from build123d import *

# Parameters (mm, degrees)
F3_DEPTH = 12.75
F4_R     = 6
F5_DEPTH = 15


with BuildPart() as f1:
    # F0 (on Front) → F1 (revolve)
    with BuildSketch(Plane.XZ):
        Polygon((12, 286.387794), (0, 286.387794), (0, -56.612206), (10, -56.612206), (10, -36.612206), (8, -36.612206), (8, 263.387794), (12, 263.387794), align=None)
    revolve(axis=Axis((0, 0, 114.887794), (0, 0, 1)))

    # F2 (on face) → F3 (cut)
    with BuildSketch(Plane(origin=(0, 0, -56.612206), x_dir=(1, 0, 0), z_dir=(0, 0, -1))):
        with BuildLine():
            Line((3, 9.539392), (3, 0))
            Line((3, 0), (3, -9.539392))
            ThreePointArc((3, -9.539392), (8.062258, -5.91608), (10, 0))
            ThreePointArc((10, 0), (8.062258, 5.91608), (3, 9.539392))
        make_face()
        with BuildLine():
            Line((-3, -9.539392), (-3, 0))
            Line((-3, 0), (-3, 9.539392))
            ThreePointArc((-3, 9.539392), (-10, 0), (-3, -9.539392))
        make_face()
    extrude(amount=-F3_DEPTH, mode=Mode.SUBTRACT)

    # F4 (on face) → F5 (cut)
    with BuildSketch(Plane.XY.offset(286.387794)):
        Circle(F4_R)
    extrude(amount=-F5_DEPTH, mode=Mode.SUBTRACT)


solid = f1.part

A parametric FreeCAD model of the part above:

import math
import FreeCAD as App
import Part
import Sketcher

V = App.Vector

doc = App.newDocument("Part")
body = doc.addObject("PartDesign::Body", "Body")

# Sketch on XZ plane
sketch1 = body.newObject("Sketcher::SketchObject", "Sketch")
sketch1.AttachmentSupport = (doc.getObject("XZ_Plane"), [""])
sketch1.MapMode = "FlatFace"
sketch1.addGeometry(Part.LineSegment(V(12, 286.4, 0), V(0, 286.4, 0)), False)
sketch1.addGeometry(Part.LineSegment(V(0, 286.4, 0), V(0, -56.6, 0)), False)
sketch1.addGeometry(Part.LineSegment(V(0, -56.6, 0), V(10, -56.6, 0)), False)
sketch1.addGeometry(Part.LineSegment(V(10, -56.6, 0), V(10, -36.6, 0)), False)
sketch1.addGeometry(Part.LineSegment(V(10, -36.6, 0), V(8, -36.6, 0)), False)
sketch1.addGeometry(Part.LineSegment(V(8, -36.6, 0), V(8, 263.4, 0)), False)
sketch1.addGeometry(Part.LineSegment(V(8, 263.4, 0), V(12, 263.4, 0)), False)
sketch1.addGeometry(Part.LineSegment(V(12, 263.4, 0), V(12, 286.4, 0)), False)
sketch1.addConstraint(Sketcher.Constraint("Coincident", 0, 2, 1, 1))
sketch1.addConstraint(Sketcher.Constraint("Coincident", 1, 2, 2, 1))
sketch1.addConstraint(Sketcher.Constraint("Coincident", 2, 2, 3, 1))
sketch1.addConstraint(Sketcher.Constraint("Coincident", 3, 2, 4, 1))
sketch1.addConstraint(Sketcher.Constraint("Coincident", 4, 2, 5, 1))
sketch1.addConstraint(Sketcher.Constraint("Coincident", 5, 2, 6, 1))
sketch1.addConstraint(Sketcher.Constraint("Coincident", 6, 2, 7, 1))
sketch1.addConstraint(Sketcher.Constraint("Coincident", 7, 2, 0, 1))
sketch1.addConstraint(Sketcher.Constraint("Horizontal", 0))
sketch1.addConstraint(Sketcher.Constraint("Vertical", 1))
sketch1.addConstraint(Sketcher.Constraint("Horizontal", 2))
sketch1.addConstraint(Sketcher.Constraint("Vertical", 3))
sketch1.addConstraint(Sketcher.Constraint("Horizontal", 4))
sketch1.addConstraint(Sketcher.Constraint("Vertical", 5))
sketch1.addConstraint(Sketcher.Constraint("Horizontal", 6))
sketch1.addConstraint(Sketcher.Constraint("Vertical", 7))
sketch1.addConstraint(Sketcher.Constraint("PointOnObject", 0, 2, -2))
sketch1.addConstraint(Sketcher.Constraint("DistanceX", 0, 2, 0, 1, 12.0))
sketch1.addConstraint(Sketcher.Constraint("DistanceX", 2, 1, 2, 2, 10.0))
sketch1.addConstraint(Sketcher.Constraint("DistanceX", 4, 2, 4, 1, 2.0))
sketch1.addConstraint(Sketcher.Constraint("DistanceY", 1, 2, 1, 1, 343.0))
sketch1.addConstraint(Sketcher.Constraint("DistanceY", 3, 1, 3, 2, 20.0))
sketch1.addConstraint(Sketcher.Constraint("DistanceY", 5, 1, 5, 2, 300.0))
sketch1.addConstraint(Sketcher.Constraint("DistanceY", -1, 1, 0, 2, 286.387794))
revolution = body.newObject("PartDesign::Revolution", "Revolution")
revolution.Profile = sketch1
revolution.ReferenceAxis = (sketch1, ["V_Axis"])
revolution.Angle = 360

# Sketch on XY plane
sketch2 = body.newObject("Sketcher::SketchObject", "Sketch001")
sketch2.AttachmentSupport = (doc.getObject("XY_Plane"), [""])
sketch2.MapMode = "FlatFace"
sketch2.AttachmentOffset = App.Placement(V(0, 0, -56.612206), App.Rotation())
sketch2.addGeometry(Part.LineSegment(V(3, -10, 0), V(3, 10, 0)), False)
sketch2.addGeometry(Part.ArcOfCircle(Part.Circle(V(0, 0, 0), V(0, 0, 1), 10), math.radians(0), math.radians(73)), False)
sketch2.addGeometry(Part.ArcOfCircle(Part.Circle(V(0, 0, 0), V(0, 0, 1), 10), math.radians(-73), math.radians(0)), False)
sketch2.addGeometry(Part.LineSegment(V(-3, 10, 0), V(-3, -10, 0)), False)
sketch2.addGeometry(Part.ArcOfCircle(Part.Circle(V(0, 0, 0), V(0, 0, 1), 10), math.radians(107), math.radians(253)), False)
sketch2.addConstraint(Sketcher.Constraint("Coincident", 0, 2, 1, 2))
sketch2.addConstraint(Sketcher.Constraint("Tangent", 1, 1, 2, 2))
sketch2.addConstraint(Sketcher.Constraint("Coincident", 2, 1, 0, 1))
sketch2.addConstraint(Sketcher.Constraint("Coincident", 3, 1, 4, 1))
sketch2.addConstraint(Sketcher.Constraint("Coincident", 4, 2, 3, 2))
sketch2.addConstraint(Sketcher.Constraint("Vertical", 0))
sketch2.addConstraint(Sketcher.Constraint("Vertical", 3))
sketch2.addConstraint(Sketcher.Constraint("Coincident", 1, 3, -1, 1))
sketch2.addConstraint(Sketcher.Constraint("Coincident", 4, 3, -1, 1))
sketch2.addConstraint(Sketcher.Constraint("Equal", 1, 2))
sketch2.addConstraint(Sketcher.Constraint("Equal", 2, 4))
sketch2.addConstraint(Sketcher.Constraint("PointOnObject", 1, 1, -1))
sketch2.addConstraint(Sketcher.Constraint("Horizontal", 0, 2, 3, 1))
sketch2.addConstraint(Sketcher.Constraint("Radius", 1, 9.999999))
sketch2.addConstraint(Sketcher.Constraint("DistanceX", -1, 1, 0, 2, 3.0))
pocket1 = body.newObject("PartDesign::Pocket", "Pocket")
pocket1.Profile = sketch2
pocket1.Length = 12.75
pocket1.Reversed = True

# Sketch on XY plane
sketch3 = body.newObject("Sketcher::SketchObject", "Sketch002")
sketch3.AttachmentSupport = (doc.getObject("XY_Plane"), [""])
sketch3.MapMode = "FlatFace"
sketch3.AttachmentOffset = App.Placement(V(0, 0, 286.387794), App.Rotation())
sketch3.addGeometry(Part.Circle(V(0, 0, 0), V(0, 0, 1), 6), False)
sketch3.addConstraint(Sketcher.Constraint("Coincident", 0, 3, -1, 1))
sketch3.addConstraint(Sketcher.Constraint("Diameter", 0, 12.0))
pocket2 = body.newObject("PartDesign::Pocket", "Pocket001")
pocket2.Profile = sketch3
pocket2.Length = 15

doc.recompute()
